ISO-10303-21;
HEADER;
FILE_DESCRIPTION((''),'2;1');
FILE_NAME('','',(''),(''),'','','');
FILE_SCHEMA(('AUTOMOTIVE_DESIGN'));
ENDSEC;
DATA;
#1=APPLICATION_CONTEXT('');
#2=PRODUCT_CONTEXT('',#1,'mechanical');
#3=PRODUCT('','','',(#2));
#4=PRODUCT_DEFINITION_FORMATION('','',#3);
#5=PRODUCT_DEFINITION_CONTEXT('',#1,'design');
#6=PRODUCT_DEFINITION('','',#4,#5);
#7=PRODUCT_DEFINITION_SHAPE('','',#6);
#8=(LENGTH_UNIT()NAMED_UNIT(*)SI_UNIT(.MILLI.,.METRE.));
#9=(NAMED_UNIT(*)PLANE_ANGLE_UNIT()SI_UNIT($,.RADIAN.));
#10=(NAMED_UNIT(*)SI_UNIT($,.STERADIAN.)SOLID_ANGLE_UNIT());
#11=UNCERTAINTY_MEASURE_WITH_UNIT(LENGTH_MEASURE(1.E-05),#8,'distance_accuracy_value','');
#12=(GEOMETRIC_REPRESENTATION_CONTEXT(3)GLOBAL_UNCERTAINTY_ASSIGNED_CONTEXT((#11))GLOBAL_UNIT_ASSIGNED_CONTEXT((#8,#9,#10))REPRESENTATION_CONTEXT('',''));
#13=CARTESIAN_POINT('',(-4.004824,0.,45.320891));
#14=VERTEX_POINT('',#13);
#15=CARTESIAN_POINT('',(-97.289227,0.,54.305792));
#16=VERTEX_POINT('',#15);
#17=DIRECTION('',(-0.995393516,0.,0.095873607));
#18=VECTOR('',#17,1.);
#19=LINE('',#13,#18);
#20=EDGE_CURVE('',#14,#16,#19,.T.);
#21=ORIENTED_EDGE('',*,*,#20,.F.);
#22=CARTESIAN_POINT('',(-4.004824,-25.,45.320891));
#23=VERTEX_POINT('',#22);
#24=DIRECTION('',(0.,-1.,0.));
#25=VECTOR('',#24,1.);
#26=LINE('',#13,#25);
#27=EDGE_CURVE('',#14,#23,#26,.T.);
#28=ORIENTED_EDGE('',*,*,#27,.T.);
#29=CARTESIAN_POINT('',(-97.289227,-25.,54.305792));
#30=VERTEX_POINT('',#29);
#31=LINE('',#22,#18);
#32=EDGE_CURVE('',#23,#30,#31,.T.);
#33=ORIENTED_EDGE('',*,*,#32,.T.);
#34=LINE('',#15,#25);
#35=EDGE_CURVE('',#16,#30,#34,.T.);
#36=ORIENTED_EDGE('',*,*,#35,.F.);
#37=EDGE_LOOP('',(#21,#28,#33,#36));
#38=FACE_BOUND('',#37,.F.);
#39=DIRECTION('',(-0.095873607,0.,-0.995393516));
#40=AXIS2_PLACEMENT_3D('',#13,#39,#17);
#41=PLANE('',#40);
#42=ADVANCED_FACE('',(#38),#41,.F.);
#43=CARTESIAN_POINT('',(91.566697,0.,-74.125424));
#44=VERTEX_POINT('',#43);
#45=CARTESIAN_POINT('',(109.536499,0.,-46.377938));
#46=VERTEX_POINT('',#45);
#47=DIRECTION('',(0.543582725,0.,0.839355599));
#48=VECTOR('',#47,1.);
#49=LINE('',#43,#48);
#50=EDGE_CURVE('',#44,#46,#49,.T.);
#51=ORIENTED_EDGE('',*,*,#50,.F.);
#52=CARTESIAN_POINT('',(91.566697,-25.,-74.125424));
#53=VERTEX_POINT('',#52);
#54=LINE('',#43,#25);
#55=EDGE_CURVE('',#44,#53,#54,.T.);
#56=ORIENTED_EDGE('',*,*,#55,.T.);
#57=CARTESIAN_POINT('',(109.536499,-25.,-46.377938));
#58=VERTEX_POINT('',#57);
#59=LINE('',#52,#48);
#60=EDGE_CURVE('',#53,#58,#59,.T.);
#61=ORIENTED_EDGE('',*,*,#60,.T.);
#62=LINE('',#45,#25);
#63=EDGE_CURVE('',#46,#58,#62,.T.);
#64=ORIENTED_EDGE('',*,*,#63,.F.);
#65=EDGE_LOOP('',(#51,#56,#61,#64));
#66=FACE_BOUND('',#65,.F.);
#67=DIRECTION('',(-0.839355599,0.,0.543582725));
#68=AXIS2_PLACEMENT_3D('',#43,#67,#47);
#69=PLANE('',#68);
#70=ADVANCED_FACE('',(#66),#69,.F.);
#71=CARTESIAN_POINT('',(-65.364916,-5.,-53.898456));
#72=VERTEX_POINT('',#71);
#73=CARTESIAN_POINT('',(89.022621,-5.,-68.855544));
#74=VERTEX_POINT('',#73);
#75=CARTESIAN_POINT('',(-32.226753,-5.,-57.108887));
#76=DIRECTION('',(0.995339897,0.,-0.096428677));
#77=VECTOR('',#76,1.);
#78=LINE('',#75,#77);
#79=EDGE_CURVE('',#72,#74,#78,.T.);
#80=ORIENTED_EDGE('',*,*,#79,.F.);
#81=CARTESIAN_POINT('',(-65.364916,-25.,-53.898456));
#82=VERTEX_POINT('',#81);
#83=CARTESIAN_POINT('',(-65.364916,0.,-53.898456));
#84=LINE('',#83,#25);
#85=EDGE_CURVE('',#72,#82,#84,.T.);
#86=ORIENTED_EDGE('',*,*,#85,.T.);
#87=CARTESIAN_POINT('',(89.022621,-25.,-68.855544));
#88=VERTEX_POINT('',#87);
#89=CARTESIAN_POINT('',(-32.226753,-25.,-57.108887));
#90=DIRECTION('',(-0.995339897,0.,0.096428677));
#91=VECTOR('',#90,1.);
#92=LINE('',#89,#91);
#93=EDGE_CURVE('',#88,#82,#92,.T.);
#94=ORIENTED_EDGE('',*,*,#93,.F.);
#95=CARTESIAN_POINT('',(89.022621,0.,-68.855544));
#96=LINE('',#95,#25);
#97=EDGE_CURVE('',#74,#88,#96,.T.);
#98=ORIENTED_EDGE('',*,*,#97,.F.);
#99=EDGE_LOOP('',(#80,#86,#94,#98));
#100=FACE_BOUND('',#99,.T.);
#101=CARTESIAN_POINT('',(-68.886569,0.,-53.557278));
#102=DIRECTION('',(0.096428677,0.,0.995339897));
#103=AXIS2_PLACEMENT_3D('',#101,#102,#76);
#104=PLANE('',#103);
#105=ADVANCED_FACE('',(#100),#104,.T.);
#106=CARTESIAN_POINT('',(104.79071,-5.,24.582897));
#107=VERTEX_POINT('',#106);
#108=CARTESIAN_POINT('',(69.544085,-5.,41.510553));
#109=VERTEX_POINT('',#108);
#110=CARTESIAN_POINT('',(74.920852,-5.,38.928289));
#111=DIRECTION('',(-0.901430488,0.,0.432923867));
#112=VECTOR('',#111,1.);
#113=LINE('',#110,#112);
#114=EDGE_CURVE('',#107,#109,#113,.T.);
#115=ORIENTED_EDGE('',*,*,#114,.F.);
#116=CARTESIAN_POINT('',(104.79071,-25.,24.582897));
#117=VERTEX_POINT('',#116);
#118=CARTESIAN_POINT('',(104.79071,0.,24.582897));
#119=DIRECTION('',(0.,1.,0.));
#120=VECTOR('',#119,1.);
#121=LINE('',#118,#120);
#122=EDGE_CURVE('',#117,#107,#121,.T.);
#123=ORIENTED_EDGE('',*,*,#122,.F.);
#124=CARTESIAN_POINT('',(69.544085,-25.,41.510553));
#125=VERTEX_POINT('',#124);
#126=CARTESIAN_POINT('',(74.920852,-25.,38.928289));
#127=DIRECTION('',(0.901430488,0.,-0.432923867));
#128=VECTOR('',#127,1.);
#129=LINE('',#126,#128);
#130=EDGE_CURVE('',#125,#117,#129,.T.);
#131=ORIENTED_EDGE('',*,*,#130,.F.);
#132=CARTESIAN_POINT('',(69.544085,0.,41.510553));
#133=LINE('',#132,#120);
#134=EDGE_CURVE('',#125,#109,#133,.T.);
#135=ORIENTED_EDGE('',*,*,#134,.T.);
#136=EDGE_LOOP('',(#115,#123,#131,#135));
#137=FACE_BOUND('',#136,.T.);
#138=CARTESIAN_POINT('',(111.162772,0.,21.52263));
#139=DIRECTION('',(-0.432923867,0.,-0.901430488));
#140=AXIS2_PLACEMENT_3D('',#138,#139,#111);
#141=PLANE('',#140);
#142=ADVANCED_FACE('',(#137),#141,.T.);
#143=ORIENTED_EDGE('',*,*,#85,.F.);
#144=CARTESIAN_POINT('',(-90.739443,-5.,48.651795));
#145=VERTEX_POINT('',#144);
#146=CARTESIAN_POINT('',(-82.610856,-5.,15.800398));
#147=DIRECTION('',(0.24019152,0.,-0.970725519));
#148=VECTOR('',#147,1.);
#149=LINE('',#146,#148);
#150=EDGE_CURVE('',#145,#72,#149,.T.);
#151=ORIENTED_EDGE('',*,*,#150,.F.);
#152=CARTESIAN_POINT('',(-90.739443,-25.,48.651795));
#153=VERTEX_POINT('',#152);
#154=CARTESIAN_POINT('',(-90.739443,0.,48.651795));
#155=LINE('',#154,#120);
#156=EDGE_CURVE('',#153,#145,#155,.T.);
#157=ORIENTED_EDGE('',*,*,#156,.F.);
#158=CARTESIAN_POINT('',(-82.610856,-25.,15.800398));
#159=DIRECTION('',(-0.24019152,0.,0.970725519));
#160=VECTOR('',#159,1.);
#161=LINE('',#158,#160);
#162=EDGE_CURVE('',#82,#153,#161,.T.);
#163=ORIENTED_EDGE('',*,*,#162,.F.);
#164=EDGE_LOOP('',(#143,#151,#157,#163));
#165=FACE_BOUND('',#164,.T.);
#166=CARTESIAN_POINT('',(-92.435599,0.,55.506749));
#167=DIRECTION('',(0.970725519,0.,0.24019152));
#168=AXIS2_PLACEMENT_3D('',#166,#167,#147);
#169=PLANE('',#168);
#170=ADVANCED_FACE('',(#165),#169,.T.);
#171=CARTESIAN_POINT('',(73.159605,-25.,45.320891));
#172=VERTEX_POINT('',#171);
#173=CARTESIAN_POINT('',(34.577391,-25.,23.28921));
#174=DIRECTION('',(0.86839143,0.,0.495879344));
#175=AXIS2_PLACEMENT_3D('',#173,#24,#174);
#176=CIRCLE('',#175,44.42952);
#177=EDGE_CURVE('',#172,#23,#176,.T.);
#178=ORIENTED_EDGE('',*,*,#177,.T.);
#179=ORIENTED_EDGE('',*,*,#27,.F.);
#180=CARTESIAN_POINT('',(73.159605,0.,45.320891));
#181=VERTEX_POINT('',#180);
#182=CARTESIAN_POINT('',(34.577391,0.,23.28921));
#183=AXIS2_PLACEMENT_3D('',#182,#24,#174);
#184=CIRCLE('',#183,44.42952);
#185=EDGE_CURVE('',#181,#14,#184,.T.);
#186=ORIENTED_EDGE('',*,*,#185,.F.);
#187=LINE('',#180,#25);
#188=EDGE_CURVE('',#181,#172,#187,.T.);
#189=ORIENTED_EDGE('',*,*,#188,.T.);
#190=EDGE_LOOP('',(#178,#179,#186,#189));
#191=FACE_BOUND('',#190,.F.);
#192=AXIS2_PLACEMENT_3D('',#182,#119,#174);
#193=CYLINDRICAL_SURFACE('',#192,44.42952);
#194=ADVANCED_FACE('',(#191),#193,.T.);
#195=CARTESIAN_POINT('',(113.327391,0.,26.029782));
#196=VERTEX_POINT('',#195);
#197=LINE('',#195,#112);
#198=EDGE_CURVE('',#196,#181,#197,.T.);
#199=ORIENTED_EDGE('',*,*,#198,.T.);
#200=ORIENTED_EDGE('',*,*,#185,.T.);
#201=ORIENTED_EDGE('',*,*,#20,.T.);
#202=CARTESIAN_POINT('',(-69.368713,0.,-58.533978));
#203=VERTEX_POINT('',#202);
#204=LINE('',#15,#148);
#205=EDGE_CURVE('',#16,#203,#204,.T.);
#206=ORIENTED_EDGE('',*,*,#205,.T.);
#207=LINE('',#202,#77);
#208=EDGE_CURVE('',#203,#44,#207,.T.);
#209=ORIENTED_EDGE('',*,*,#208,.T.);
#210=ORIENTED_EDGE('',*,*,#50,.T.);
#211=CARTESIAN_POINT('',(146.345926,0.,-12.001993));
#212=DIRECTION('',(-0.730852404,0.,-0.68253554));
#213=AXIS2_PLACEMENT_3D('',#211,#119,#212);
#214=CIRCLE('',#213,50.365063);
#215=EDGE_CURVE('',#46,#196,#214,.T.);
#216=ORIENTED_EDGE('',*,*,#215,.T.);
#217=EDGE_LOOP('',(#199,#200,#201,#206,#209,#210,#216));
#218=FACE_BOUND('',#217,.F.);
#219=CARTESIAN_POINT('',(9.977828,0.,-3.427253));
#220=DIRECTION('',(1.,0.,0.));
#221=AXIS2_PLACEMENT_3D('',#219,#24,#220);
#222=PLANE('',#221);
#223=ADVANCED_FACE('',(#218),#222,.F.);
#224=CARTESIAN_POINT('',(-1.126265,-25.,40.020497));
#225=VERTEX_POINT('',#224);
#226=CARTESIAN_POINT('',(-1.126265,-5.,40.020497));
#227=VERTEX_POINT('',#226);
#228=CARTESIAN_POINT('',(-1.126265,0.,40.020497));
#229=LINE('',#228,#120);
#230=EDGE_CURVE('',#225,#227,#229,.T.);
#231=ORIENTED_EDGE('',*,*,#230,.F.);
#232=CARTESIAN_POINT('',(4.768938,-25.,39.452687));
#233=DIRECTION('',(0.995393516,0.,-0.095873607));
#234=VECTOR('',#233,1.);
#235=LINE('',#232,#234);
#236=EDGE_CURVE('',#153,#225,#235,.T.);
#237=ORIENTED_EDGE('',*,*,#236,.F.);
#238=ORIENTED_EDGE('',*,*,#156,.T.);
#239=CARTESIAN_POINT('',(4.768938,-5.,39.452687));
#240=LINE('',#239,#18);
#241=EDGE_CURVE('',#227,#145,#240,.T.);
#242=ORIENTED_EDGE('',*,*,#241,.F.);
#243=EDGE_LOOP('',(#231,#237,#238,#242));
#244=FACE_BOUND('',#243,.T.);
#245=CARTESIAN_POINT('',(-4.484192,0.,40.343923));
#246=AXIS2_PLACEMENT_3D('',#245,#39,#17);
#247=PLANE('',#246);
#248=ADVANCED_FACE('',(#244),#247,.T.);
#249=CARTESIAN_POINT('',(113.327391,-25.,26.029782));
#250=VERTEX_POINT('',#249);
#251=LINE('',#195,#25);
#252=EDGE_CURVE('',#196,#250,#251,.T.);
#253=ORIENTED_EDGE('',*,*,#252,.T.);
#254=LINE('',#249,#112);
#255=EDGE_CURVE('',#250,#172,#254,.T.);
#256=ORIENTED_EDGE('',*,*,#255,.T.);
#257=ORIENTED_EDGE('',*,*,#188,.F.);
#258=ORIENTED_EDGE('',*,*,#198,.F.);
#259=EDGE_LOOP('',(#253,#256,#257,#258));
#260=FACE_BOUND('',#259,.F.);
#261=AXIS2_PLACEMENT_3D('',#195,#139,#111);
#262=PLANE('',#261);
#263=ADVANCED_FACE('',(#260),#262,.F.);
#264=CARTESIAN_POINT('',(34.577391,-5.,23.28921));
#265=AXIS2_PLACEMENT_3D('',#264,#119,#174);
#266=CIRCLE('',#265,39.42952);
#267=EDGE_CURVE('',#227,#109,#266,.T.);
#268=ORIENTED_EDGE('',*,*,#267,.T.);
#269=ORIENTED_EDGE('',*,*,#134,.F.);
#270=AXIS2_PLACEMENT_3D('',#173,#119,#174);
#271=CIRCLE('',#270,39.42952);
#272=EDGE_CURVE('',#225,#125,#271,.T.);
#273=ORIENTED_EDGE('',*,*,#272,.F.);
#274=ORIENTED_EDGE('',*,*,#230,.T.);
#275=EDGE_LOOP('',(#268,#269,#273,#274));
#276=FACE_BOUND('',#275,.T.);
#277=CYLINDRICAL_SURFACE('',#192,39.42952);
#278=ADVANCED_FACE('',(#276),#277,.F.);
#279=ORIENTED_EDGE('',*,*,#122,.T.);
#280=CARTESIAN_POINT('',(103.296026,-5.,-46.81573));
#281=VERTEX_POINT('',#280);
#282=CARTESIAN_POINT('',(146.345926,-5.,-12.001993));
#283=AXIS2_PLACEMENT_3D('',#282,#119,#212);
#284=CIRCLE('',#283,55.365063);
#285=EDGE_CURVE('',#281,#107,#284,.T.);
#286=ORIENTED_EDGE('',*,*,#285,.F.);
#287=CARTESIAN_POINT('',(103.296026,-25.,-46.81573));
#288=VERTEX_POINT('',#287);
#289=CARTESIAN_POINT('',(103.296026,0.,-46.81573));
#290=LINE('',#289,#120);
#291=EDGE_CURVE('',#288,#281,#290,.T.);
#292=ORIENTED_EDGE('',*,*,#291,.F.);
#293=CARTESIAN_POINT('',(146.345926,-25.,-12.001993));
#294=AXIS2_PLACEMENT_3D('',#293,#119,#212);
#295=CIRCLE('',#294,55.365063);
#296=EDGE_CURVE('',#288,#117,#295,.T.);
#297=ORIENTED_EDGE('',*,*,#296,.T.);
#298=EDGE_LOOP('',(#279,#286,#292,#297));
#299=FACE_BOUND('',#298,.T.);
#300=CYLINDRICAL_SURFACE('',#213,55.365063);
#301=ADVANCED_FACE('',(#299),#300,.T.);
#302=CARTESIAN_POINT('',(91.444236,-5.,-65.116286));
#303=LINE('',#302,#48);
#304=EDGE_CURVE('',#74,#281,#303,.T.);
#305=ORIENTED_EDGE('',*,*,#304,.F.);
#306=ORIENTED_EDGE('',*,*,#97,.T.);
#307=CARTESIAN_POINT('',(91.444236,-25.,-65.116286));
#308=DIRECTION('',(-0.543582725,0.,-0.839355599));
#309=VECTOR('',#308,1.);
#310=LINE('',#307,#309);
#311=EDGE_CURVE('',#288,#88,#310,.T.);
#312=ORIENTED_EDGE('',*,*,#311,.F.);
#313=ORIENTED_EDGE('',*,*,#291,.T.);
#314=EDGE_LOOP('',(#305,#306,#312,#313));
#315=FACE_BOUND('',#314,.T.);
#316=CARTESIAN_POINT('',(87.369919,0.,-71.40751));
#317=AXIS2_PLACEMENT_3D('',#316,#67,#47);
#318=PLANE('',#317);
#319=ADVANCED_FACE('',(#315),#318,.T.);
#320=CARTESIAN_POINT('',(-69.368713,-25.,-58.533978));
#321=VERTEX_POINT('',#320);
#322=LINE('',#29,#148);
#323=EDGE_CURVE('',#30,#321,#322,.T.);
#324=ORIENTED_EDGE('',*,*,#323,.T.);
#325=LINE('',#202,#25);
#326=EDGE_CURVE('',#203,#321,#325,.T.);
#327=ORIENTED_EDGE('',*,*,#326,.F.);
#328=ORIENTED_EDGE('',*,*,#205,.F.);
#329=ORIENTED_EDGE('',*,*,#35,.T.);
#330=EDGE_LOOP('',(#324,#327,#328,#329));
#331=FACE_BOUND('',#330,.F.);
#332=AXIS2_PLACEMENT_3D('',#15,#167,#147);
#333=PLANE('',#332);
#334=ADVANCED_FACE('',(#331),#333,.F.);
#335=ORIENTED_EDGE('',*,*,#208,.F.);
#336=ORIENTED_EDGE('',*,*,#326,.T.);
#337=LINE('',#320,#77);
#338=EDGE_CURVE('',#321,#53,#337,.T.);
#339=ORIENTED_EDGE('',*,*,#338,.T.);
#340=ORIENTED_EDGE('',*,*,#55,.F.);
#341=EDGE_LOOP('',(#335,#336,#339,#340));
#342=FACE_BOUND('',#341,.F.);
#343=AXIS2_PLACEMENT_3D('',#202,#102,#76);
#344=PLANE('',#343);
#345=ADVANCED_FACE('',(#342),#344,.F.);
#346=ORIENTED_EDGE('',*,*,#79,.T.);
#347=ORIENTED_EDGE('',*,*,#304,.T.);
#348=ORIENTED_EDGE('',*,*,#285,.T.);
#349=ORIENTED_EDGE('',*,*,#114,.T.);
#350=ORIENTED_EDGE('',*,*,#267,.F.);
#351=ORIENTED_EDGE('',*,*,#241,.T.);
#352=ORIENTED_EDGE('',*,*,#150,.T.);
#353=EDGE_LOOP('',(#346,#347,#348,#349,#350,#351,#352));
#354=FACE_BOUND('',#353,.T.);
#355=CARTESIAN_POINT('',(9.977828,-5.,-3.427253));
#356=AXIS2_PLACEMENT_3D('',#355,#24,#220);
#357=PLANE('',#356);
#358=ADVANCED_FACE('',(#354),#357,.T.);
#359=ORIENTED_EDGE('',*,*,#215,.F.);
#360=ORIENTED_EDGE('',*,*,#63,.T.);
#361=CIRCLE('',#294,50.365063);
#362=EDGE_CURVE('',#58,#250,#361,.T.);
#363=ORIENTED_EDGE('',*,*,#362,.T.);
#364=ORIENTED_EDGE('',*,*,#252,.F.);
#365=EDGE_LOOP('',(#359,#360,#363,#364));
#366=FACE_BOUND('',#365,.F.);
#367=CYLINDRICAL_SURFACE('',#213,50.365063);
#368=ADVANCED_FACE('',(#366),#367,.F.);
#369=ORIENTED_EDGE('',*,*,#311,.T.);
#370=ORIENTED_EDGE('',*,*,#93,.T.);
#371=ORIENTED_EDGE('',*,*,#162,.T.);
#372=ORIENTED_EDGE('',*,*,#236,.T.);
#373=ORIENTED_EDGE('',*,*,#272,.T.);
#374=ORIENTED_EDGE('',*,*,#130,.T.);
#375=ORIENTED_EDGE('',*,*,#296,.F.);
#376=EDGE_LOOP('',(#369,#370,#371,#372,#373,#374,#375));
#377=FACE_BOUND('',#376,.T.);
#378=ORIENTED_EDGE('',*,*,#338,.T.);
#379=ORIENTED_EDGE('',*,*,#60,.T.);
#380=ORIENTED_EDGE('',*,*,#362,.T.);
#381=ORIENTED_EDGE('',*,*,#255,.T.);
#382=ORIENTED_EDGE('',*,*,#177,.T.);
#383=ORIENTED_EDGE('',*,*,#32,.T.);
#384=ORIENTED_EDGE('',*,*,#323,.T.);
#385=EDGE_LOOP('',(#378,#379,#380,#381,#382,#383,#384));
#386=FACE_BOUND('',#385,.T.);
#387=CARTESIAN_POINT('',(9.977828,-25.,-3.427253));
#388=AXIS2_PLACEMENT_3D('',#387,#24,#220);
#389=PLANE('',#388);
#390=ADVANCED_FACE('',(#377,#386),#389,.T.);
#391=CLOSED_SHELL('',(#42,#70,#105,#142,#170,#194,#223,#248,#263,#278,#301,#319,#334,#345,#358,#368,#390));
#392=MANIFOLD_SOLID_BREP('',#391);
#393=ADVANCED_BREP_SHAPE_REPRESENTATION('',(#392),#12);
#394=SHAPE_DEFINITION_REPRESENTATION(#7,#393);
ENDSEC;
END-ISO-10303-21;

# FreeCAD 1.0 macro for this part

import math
import FreeCAD as App
import Part
import Sketcher
from FreeCAD import Vector


def faces_at(feature, points):
    """Names of the faces that lie closest to the given points."""
    faces = feature.Shape.Faces
    near = lambda p: min(range(len(faces)), key=lambda i: faces[i].distToShape(Part.Vertex(*p))[0])
    return sorted({f"Face{near(p) + 1}" for p in points})

doc = App.newDocument("Part")
body = doc.addObject("PartDesign::Body", "Body")

# Sketch on XZ plane
sketch1 = body.newObject("Sketcher::SketchObject", "Sketch")
sketch1.AttachmentSupport = (doc.getObject("XZ_Plane"), [""])
sketch1.MapMode = "FlatFace"
sketch1.addGeometry([
    Part.LineSegment(Vector(-97, 54, 0), Vector(-69, -59, 0)),  # 0
    Part.LineSegment(Vector(-69, -59, 0), Vector(92, -74, 0)),  # 1
    Part.LineSegment(Vector(92, -74, 0), Vector(110, -46, 0)),  # 2
    Part.ArcOfCircle(Part.Circle(Vector(146, -12, 0), Vector(0, 0, 1), 50), math.radians(131), math.radians(223)),  # 3
    Part.LineSegment(Vector(113, 26, 0), Vector(73, 45, 0)),  # 4
    Part.ArcOfCircle(Part.Circle(Vector(35, 23, 0), Vector(0, 0, 1), 44), math.radians(30), math.radians(150)),  # 5
    Part.LineSegment(Vector(-4, 45, 0), Vector(-97, 54, 0)),  # 6
], False)
sketch1.addConstraint([
    Sketcher.Constraint("Coincident", 0, 2, 1, 1),
    Sketcher.Constraint("Coincident", 1, 2, 2, 1),
    Sketcher.Constraint("Coincident", 2, 2, 3, 2),
    Sketcher.Constraint("Coincident", 3, 1, 4, 1),
    Sketcher.Constraint("Coincident", 4, 2, 5, 1),
    Sketcher.Constraint("Coincident", 5, 2, 6, 1),
    Sketcher.Constraint("Coincident", 6, 2, 0, 1),
    Sketcher.Constraint("Horizontal", 4, 2, 5, 2),
    Sketcher.Constraint("Radius", 5, 44.42952),
    Sketcher.Constraint("DistanceX", 5, 3, 3, 1, 78.750001),
    Sketcher.Constraint("Radius", 3, 50.365063),
    Sketcher.Constraint("DistanceX", -1, 1, 2, 2, 109.536499),
    Sketcher.Constraint("DistanceY", 5, 2, 6, 2, 8.984901),
    Sketcher.Constraint("Distance", 2, 33.058081),
    Sketcher.Constraint("Distance", 4, 44.560048),
    Sketcher.Constraint("DistanceX", -1, 1, 5, 3, 34.577391),
    Sketcher.Constraint("DistanceY", -1, 1, 5, 3, 23.28921),
    Sketcher.Constraint("DistanceY", 2, 2, -1, 1, 46.377938),
    Sketcher.Constraint("DistanceY", -1, 1, 4, 2, 45.320891),
    Sketcher.Constraint("DistanceX", 0, 2, 3, 3, 215.714639),
    Sketcher.Constraint("DistanceX", 1, 2, 3, 3, 54.779229),
    Sketcher.Constraint("DistanceY", 0, 2, 2, 2, 12.156039),
    Sketcher.Constraint("DistanceX", 6, 2, 3, 1, 210.616618),
])
pad1 = body.newObject("PartDesign::Pad", "Pad")
pad1.Profile = sketch1
pad1.Length = 25
doc.recompute()

thickness = body.newObject("PartDesign::Thickness", "Thickness")
thickness.Base = (pad1, faces_at(pad1, [(8.019, -25, -3.203)]))
thickness.Value = 5
thickness.Reversed = True
thickness.Join = "Intersection"

doc.recompute()
